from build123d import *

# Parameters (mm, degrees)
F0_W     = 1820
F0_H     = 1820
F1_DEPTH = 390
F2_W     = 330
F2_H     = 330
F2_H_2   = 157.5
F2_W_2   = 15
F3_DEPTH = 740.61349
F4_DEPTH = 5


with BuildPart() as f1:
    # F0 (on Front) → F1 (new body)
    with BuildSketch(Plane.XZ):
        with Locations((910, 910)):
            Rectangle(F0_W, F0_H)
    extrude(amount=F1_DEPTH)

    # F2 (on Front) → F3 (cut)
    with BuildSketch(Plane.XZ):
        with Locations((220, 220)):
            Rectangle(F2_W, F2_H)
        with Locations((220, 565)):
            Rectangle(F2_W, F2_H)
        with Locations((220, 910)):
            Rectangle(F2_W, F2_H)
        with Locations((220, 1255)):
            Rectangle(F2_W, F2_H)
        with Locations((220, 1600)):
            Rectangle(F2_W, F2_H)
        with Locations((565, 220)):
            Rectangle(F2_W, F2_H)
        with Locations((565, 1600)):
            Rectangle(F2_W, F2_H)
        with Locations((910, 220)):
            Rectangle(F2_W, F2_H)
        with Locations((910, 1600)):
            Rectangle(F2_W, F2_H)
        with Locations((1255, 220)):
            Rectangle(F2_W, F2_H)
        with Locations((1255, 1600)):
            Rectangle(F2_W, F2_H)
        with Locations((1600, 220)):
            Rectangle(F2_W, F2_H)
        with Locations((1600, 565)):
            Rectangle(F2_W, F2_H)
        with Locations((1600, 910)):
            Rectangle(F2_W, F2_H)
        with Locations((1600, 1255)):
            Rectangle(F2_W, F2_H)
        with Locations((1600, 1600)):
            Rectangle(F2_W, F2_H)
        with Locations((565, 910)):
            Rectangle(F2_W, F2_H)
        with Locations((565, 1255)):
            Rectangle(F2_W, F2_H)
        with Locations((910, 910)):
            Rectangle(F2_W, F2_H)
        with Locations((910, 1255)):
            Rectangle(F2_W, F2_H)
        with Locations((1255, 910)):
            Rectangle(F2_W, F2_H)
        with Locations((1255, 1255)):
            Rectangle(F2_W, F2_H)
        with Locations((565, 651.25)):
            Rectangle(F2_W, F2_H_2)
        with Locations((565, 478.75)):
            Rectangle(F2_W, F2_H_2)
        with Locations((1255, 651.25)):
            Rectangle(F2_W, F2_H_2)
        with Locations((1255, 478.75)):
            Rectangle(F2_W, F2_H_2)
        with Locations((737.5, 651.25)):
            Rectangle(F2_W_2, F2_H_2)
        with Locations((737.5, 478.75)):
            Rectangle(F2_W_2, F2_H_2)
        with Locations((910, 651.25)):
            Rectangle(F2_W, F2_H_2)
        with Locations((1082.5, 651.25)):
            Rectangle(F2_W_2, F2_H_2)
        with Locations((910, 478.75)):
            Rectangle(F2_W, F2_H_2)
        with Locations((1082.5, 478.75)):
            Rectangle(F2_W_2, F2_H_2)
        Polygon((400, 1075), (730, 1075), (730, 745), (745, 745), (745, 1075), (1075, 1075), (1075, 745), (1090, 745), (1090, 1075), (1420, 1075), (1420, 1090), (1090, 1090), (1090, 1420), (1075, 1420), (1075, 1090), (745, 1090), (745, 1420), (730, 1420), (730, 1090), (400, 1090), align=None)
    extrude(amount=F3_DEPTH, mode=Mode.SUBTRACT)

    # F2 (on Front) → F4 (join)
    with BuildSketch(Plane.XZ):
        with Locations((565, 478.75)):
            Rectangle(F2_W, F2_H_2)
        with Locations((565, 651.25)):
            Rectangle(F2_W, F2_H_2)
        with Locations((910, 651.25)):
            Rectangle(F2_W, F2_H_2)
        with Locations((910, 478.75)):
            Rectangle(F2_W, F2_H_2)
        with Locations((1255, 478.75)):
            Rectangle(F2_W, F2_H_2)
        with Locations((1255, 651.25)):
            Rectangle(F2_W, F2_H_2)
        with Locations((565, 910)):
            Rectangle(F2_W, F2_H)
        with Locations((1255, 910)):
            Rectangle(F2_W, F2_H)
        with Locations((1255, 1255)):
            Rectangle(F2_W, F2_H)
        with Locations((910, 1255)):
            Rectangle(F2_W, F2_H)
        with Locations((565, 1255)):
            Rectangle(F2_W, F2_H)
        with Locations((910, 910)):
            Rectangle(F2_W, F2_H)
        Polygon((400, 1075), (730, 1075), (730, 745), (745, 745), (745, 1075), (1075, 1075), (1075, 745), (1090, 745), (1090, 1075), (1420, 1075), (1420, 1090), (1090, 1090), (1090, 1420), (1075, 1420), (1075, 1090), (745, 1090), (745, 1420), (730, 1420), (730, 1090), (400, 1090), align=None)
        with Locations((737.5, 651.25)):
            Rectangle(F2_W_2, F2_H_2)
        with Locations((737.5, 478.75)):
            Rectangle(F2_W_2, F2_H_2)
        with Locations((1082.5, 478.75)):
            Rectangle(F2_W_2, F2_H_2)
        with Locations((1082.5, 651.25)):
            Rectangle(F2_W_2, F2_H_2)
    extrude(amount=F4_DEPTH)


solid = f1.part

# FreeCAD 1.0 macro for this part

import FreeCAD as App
import Part
import Sketcher
from FreeCAD import Vector


def add_polygon(sketch, points):
    """Adds a closed chain of lines whose ends are joined by coincident constraints."""
    first, n = sketch.GeometryCount, len(points)
    for a, b in zip(points, points[1:] + points[:1]):
        sketch.addGeometry(Part.LineSegment(App.Vector(*a, 0), App.Vector(*b, 0)), False)
    for i in range(n):
        sketch.addConstraint(Sketcher.Constraint("Coincident", first + i, 2, first + (i + 1) % n, 1))

doc = App.newDocument("Part")
body = doc.addObject("PartDesign::Body", "Body")

sketch1 = body.newObject("Sketcher::SketchObject", "Sketch")
sketch1.AttachmentSupport = (doc.getObject("XZ_Plane"), [""])
sketch1.MapMode = "FlatFace"
add_polygon(sketch1, [(0, 1820), (0, 0), (1820, 0), (1820, 1820)])
sketch1.addConstraint([
    Sketcher.Constraint("Vertical", 0),
    Sketcher.Constraint("Horizontal", 1),
    Sketcher.Constraint("Vertical", 2),
    Sketcher.Constraint("Horizontal", 3),
    Sketcher.Constraint("Coincident", 0, 2, -1, 1),
    Sketcher.Constraint("Equal", 3, 0),
    Sketcher.Constraint("DistanceX", 1, 1, 1, 2, 1820.0),
])
pad1 = body.newObject("PartDesign::Pad", "Pad")
pad1.Profile = sketch1
pad1.Length = 390

sketch2 = body.newObject("Sketcher::SketchObject", "Sketch001")
sketch2.AttachmentSupport = (doc.getObject("XZ_Plane"), [""])
sketch2.MapMode = "FlatFace"
add_polygon(sketch2, [(55, 385), (55, 55), (385, 55), (385, 385)])
add_polygon(sketch2, [(55, 730), (55, 400), (385, 400), (385, 730)])
add_polygon(sketch2, [(55, 1075), (55, 745), (385, 745), (385, 1075)])
add_polygon(sketch2, [(55, 1420), (55, 1090), (385, 1090), (385, 1420)])
add_polygon(sketch2, [(55, 1765), (55, 1435), (385, 1435), (385, 1765)])
add_polygon(sketch2, [(400, 385), (400, 55), (730, 55), (730, 385)])
add_polygon(sketch2, [(400, 1765), (400, 1435), (730, 1435), (730, 1765)])
add_polygon(sketch2, [(745, 385), (745, 55), (1075, 55), (1075, 385)])
add_polygon(sketch2, [(745, 1765), (745, 1435), (1075, 1435), (1075, 1765)])
add_polygon(sketch2, [(1090, 385), (1090, 55), (1420, 55), (1420, 385)])
add_polygon(sketch2, [(1090, 1765), (1090, 1435), (1420, 1435), (1420, 1765)])
add_polygon(sketch2, [(1435, 385), (1435, 55), (1765, 55), (1765, 385)])
add_polygon(sketch2, [(1435, 730), (1435, 400), (1765, 400), (1765, 730)])
add_polygon(sketch2, [(1435, 1075), (1435, 745), (1765, 745), (1765, 1075)])
add_polygon(sketch2, [(1435, 1420), (1435, 1090), (1765, 1090), (1765, 1420)])
add_polygon(sketch2, [(1435, 1765), (1435, 1435), (1765, 1435), (1765, 1765)])
add_polygon(sketch2, [(400, 745), (1420, 745), (1420, 1420), (400, 1420)])
add_polygon(sketch2, [(400, 730), (400, 572), (1420, 572), (1420, 730)])
add_polygon(sketch2, [(400, 558), (400, 400), (1420, 400), (1420, 558)])
sketch2.addConstraint([
    Sketcher.Constraint("Vertical", 0),
    Sketcher.Constraint("Horizontal", 1),
    Sketcher.Constraint("Vertical", 2),
    Sketcher.Constraint("Horizontal", 3),
    Sketcher.Constraint("Vertical", 4),
    Sketcher.Constraint("Horizontal", 5),
    Sketcher.Constraint("Vertical", 6),
    Sketcher.Constraint("Horizontal", 7),
    Sketcher.Constraint("Vertical", 8),
    Sketcher.Constraint("Horizontal", 9),
    Sketcher.Constraint("Vertical", 10),
    Sketcher.Constraint("Horizontal", 11),
    Sketcher.Constraint("Vertical", 12),
    Sketcher.Constraint("Horizontal", 13),
    Sketcher.Constraint("Vertical", 14),
    Sketcher.Constraint("Horizontal", 15),
    Sketcher.Constraint("Vertical", 16),
    Sketcher.Constraint("Horizontal", 17),
    Sketcher.Constraint("Vertical", 18),
    Sketcher.Constraint("Horizontal", 19),
    Sketcher.Constraint("Vertical", 20),
    Sketcher.Constraint("Horizontal", 21),
    Sketcher.Constraint("Vertical", 22),
    Sketcher.Constraint("Horizontal", 23),
    Sketcher.Constraint("Vertical", 24),
    Sketcher.Constraint("Horizontal", 25),
    Sketcher.Constraint("Vertical", 26),
    Sketcher.Constraint("Horizontal", 27),
    Sketcher.Constraint("Vertical", 28),
    Sketcher.Constraint("Horizontal", 29),
    Sketcher.Constraint("Vertical", 30),
    Sketcher.Constraint("Horizontal", 31),
    Sketcher.Constraint("Vertical", 32),
    Sketcher.Constraint("Horizontal", 33),
    Sketcher.Constraint("Vertical", 34),
    Sketcher.Constraint("Horizontal", 35),
    Sketcher.Constraint("Vertical", 36),
    Sketcher.Constraint("Horizontal", 37),
    Sketcher.Constraint("Vertical", 38),
    Sketcher.Constraint("Horizontal", 39),
    Sketcher.Constraint("Vertical", 40),
    Sketcher.Constraint("Horizontal", 41),
    Sketcher.Constraint("Vertical", 42),
    Sketcher.Constraint("Horizontal", 43),
    Sketcher.Constraint("Vertical", 44),
    Sketcher.Constraint("Horizontal", 45),
    Sketcher.Constraint("Vertical", 46),
    Sketcher.Constraint("Horizontal", 47),
    Sketcher.Constraint("Vertical", 48),
    Sketcher.Constraint("Horizontal", 49),
    Sketcher.Constraint("Vertical", 50),
    Sketcher.Constraint("Horizontal", 51),
    Sketcher.Constraint("Vertical", 52),
    Sketcher.Constraint("Horizontal", 53),
    Sketcher.Constraint("Vertical", 54),
    Sketcher.Constraint("Horizontal", 55),
    Sketcher.Constraint("Vertical", 56),
    Sketcher.Constraint("Horizontal", 57),
    Sketcher.Constraint("Vertical", 58),
    Sketcher.Constraint("Horizontal", 59),
    Sketcher.Constraint("Vertical", 60),
    Sketcher.Constraint("Horizontal", 61),
    Sketcher.Constraint("Vertical", 62),
    Sketcher.Constraint("Horizontal", 63),
    Sketcher.Constraint("Horizontal", 64),
    Sketcher.Constraint("Vertical", 65),
    Sketcher.Constraint("Horizontal", 66),
    Sketcher.Constraint("Vertical", 67),
    Sketcher.Constraint("Vertical", 68),
    Sketcher.Constraint("Horizontal", 69),
    Sketcher.Constraint("Vertical", 70),
    Sketcher.Constraint("Horizontal", 71),
    Sketcher.Constraint("Vertical", 72),
    Sketcher.Constraint("Horizontal", 73),
    Sketcher.Constraint("Vertical", 74),
    Sketcher.Constraint("Horizontal", 75),
    Sketcher.Constraint("Horizontal", 1, 2, 20, 2),
    Sketcher.Constraint("Horizontal", 3, 2, 22, 2),
    Sketcher.Constraint("Horizontal", 17, 2, 24, 2),
    Sketcher.Constraint("Horizontal", 19, 2, 26, 2),
    Sketcher.Constraint("Horizontal", 21, 2, 28, 2),
    Sketcher.Constraint("Horizontal", 23, 2, 30, 2),
    Sketcher.Constraint("Horizontal", 25, 2, 32, 2),
    Sketcher.Constraint("Horizontal", 27, 2, 34, 2),
    Sketcher.Constraint("Horizontal", 29, 2, 36, 2),
    Sketcher.Constraint("Horizontal", 31, 2, 38, 2),
    Sketcher.Constraint("Horizontal", 33, 2, 40, 2),
    Sketcher.Constraint("Horizontal", 35, 2, 42, 2),
    Sketcher.Constraint("Horizontal", 37, 2, 44, 2),
    Sketcher.Constraint("Horizontal", 39, 2, 46, 2),
    Sketcher.Constraint("Horizontal", 5, 2, 48, 2),
    Sketcher.Constraint("Horizontal", 7, 2, 50, 2),
    Sketcher.Constraint("Horizontal", 9, 2, 52, 2),
    Sketcher.Constraint("Horizontal", 11, 2, 54, 2),
    Sketcher.Constraint("Horizontal", 13, 2, 56, 2),
    Sketcher.Constraint("Horizontal", 15, 2, 58, 2),
    Sketcher.Constraint("Horizontal", 41, 2, 60, 2),
    Sketcher.Constraint("Horizontal", 43, 2, 62, 2),
    Sketcher.Constraint("Horizontal", 53, 2, 64, 2),
    Sketcher.Constraint("Horizontal", 59, 2, 65, 2),
    Sketcher.Constraint("Horizontal", 51, 2, 70, 2),
    Sketcher.Constraint("Horizontal", 49, 2, 72, 2),
    Sketcher.Constraint("Vertical", 3, 2, 4, 2),
    Sketcher.Constraint("Vertical", 2, 2, 5, 2),
    Sketcher.Constraint("Vertical", 7, 2, 8, 2),
    Sketcher.Constraint("Vertical", 6, 2, 9, 2),
    Sketcher.Constraint("Vertical", 11, 2, 12, 2),
    Sketcher.Constraint("Vertical", 10, 2, 13, 2),
    Sketcher.Constraint("Vertical", 15, 2, 16, 2),
    Sketcher.Constraint("Vertical", 14, 2, 17, 2),
    Sketcher.Constraint("Vertical", 23, 2, 24, 2),
    Sketcher.Constraint("Vertical", 22, 2, 25, 2),
    Sketcher.Constraint("Vertical", 31, 2, 32, 2),
    Sketcher.Constraint("Vertical", 30, 2, 33, 2),
    Sketcher.Constraint("Vertical", 39, 2, 40, 2),
    Sketcher.Constraint("Vertical", 38, 2, 41, 2),
    Sketcher.Constraint("Vertical", 47, 2, 48, 2),
    Sketcher.Constraint("Vertical", 46, 2, 49, 2),
    Sketcher.Constraint("Vertical", 51, 2, 52, 2),
    Sketcher.Constraint("Vertical", 50, 2, 53, 2),
    Sketcher.Constraint("Vertical", 55, 2, 56, 2),
    Sketcher.Constraint("Vertical", 54, 2, 57, 2),
    Sketcher.Constraint("Vertical", 59, 2, 60, 2),
    Sketcher.Constraint("Vertical", 58, 2, 61, 2),
    Sketcher.Constraint("Vertical", 42, 2, 64, 2),
    Sketcher.Constraint("Vertical", 27, 2, 66, 2),
    Sketcher.Constraint("Vertical", 67, 2, 68, 2),
    Sketcher.Constraint("Vertical", 65, 2, 69, 2),
    Sketcher.Constraint("Vertical", 71, 2, 72, 2),
    Sketcher.Constraint("Vertical", 70, 2, 73, 2),
    Sketcher.Constraint("Equal", 19, 21),
    Sketcher.Constraint("Equal", 27, 29),
    Sketcher.Constraint("Equal", 35, 37),
    Sketcher.Constraint("Equal", 43, 45),
    Sketcher.Constraint("Equal", 63, 0),
    Sketcher.Constraint("Equal", 2, 4),
    Sketcher.Constraint("Equal", 6, 8),
    Sketcher.Constraint("Equal", 10, 12),
    Sketcher.Constraint("Equal", 14, 16),
    Sketcher.Constraint("Equal", 70, 72),
    Sketcher.Constraint("DistanceX", 1, 1, 1, 2, 330.0),
    Sketcher.Constraint("DistanceX", 64, 1, 64, 2, 1020.0),
    Sketcher.Constraint("DistanceY", 65, 1, 65, 2, 675.0),
    Sketcher.Constraint("DistanceY", 68, 2, 68, 1, 157.5),
    Sketcher.Constraint("DistanceX", -1, 1, 0, 2, 55.0),
    Sketcher.Constraint("DistanceY", -1, 1, 0, 2, 55.0),
    Sketcher.Constraint("DistanceY", -1, 1, 4, 2, 400.0),
    Sketcher.Constraint("DistanceY", -1, 1, 8, 2, 745.0),
    Sketcher.Constraint("DistanceY", -1, 1, 16, 2, 1435.0),
    Sketcher.Constraint("DistanceX", -1, 1, 20, 2, 400.0),
    Sketcher.Constraint("DistanceX", -1, 1, 28, 2, 745.0),
    Sketcher.Constraint("DistanceX", -1, 1, 44, 2, 1435.0),
])
pocket1 = body.newObject("PartDesign::Pocket", "Pocket")
pocket1.Profile = sketch2
pocket1.Length = 740.61349
pocket1.Reversed = True

sketch3 = body.newObject("Sketcher::SketchObject", "Sketch002")
sketch3.AttachmentSupport = (doc.getObject("XZ_Plane"), [""])
sketch3.MapMode = "FlatFace"
add_polygon(sketch3, [(400, 558), (400, 400), (1420, 400), (1420, 558)])
add_polygon(sketch3, [(400, 730), (400, 572), (1420, 572), (1420, 730)])
add_polygon(sketch3, [(400, 745), (1420, 745), (1420, 1420), (400, 1420)])
sketch3.addConstraint([
    Sketcher.Constraint("Vertical", 0),
    Sketcher.Constraint("Horizontal", 1),
    Sketcher.Constraint("Vertical", 2),
    Sketcher.Constraint("Horizontal", 3),
    Sketcher.Constraint("Vertical", 4),
    Sketcher.Constraint("Horizontal", 5),
    Sketcher.Constraint("Vertical", 6),
    Sketcher.Constraint("Horizontal", 7),
    Sketcher.Constraint("Horizontal", 8),
    Sketcher.Constraint("Vertical", 9),
    Sketcher.Constraint("Horizontal", 10),
    Sketcher.Constraint("Vertical", 11),
    Sketcher.Constraint("Vertical", 3, 2, 4, 2),
    Sketcher.Constraint("Vertical", 2, 2, 5, 2),
    Sketcher.Constraint("Vertical", 6, 2, 8, 2),
    Sketcher.Constraint("Vertical", 7, 2, 10, 2),
    Sketcher.Constraint("Equal", 2, 4),
    Sketcher.Constraint("DistanceX", 1, 1, 1, 2, 1020.0),
    Sketcher.Constraint("DistanceY", 9, 1, 9, 2, 675.0),
    Sketcher.Constraint("DistanceY", 0, 2, 0, 1, 157.5),
    Sketcher.Constraint("DistanceX", -1, 1, 0, 2, 400.0),
    Sketcher.Constraint("DistanceY", -1, 1, 0, 2, 400.0),
    Sketcher.Constraint("DistanceY", -1, 1, 6, 2, 730.0),
    Sketcher.Constraint("DistanceY", -1, 1, 8, 2, 745.0),
])
pad2 = body.newObject("PartDesign::Pad", "Pad001")
pad2.Profile = sketch3
pad2.Length = 5

doc.recompute()
